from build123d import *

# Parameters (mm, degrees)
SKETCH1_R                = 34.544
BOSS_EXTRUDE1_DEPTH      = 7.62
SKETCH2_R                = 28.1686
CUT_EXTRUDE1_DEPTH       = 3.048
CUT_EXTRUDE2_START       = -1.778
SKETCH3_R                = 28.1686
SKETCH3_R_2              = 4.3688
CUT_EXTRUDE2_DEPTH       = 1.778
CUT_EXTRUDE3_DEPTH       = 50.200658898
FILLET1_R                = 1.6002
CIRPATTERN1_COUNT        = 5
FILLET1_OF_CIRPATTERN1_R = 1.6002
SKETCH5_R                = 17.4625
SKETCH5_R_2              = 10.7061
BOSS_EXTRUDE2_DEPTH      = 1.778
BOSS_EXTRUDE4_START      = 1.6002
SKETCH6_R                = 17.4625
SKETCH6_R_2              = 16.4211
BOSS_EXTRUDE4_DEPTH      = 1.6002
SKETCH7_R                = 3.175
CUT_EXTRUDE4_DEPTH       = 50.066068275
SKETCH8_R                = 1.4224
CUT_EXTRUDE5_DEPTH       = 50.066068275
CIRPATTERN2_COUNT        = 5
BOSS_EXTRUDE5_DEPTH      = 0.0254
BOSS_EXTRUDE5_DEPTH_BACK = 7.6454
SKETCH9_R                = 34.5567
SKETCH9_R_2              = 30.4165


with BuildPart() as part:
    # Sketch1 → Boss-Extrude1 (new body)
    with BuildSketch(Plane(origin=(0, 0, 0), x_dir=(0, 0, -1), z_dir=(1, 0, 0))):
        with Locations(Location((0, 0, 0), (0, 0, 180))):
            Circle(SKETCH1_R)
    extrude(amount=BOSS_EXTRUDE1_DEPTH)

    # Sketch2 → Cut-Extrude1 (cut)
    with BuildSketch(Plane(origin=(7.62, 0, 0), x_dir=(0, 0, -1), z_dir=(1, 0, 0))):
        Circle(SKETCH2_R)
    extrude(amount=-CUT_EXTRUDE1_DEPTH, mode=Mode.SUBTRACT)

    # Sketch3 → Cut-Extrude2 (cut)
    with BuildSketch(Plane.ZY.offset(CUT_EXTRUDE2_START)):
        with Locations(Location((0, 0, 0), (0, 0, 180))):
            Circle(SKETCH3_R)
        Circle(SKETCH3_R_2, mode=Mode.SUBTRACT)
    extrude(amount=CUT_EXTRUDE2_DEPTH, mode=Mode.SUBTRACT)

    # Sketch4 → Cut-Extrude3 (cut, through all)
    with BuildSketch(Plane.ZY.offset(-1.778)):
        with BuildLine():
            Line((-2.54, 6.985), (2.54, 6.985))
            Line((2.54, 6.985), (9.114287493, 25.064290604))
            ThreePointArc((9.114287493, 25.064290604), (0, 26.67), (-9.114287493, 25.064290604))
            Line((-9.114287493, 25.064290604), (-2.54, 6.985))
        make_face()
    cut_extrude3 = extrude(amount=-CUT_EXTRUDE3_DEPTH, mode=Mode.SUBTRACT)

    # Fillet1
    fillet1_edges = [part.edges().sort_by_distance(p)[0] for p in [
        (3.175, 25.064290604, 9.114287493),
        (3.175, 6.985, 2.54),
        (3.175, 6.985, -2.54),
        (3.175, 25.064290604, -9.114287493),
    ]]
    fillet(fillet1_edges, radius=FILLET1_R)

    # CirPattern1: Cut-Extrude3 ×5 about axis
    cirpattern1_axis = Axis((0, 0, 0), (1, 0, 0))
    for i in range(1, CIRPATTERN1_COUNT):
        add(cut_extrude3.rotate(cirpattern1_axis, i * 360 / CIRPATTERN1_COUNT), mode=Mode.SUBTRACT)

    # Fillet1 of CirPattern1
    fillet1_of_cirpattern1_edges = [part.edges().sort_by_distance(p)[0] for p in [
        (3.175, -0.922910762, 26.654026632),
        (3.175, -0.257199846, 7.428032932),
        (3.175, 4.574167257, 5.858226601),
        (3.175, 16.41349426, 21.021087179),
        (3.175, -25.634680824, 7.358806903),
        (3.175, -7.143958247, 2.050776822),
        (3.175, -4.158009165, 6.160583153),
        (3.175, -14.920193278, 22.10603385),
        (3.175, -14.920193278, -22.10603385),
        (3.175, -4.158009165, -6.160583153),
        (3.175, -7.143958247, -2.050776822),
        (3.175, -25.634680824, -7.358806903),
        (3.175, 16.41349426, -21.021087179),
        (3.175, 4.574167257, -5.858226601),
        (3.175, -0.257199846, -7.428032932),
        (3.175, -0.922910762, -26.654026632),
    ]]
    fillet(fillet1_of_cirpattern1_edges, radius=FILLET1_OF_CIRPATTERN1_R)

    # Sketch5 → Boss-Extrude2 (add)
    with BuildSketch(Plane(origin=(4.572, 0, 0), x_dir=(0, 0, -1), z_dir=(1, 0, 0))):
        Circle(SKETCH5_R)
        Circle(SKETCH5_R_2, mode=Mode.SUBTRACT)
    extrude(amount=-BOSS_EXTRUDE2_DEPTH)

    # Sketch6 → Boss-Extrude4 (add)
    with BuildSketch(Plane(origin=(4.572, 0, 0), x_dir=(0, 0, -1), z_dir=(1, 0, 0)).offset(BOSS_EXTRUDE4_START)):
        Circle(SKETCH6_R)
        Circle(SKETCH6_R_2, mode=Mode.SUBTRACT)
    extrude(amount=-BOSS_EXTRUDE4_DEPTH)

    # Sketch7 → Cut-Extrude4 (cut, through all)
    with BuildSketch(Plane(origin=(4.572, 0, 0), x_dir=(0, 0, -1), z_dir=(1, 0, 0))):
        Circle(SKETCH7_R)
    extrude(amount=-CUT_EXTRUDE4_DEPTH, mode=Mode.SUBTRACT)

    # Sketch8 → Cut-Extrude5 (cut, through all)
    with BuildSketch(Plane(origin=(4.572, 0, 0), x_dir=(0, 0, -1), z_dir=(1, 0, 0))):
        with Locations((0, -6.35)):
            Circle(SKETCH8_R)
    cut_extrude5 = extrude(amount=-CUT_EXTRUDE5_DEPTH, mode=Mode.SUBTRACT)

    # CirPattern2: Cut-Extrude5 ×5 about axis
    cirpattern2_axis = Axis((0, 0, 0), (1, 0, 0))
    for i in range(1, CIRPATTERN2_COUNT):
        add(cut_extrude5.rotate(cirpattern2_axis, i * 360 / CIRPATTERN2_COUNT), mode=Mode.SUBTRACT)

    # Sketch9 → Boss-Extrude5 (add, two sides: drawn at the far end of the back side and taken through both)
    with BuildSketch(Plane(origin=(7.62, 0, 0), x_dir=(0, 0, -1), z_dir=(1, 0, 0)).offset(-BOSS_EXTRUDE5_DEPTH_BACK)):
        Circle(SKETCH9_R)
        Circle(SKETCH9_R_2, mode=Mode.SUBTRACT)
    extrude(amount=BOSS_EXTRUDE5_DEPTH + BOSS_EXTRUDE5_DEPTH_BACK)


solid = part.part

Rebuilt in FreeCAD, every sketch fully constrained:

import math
import FreeCAD as App
import Part
import Sketcher
from FreeCAD import Vector
Q = App.Units.Quantity


def edges_at(feature, points):
    """Names of the edges that pass closest to the given points."""
    edges = feature.Shape.Edges
    near = lambda p: min(range(len(edges)), key=lambda i: edges[i].distToShape(Part.Vertex(*p))[0])
    return sorted({f"Edge{near(p) + 1}" for p in points})

doc = App.newDocument("Part")
body = doc.addObject("PartDesign::Body", "Body")

# Sketch on YZ plane
sketch1 = body.newObject("Sketcher::SketchObject", "Sketch")
sketch1.AttachmentSupport = (doc.getObject("YZ_Plane"), [""])
sketch1.MapMode = "FlatFace"
sketch1.addGeometry(Part.Circle(Vector(0, 0, 0), Vector(0, 0, 1), 35), False)
sketch1.addConstraint([
    Sketcher.Constraint("Coincident", 0, 3, -1, 1),
    Sketcher.Constraint("Diameter", 0, Q("2.72 in")),
])
pad1 = body.newObject("PartDesign::Pad", "Pad")
pad1.Profile = sketch1
pad1.Length = Q("0.3 in")

# Sketch on YZ plane
sketch2 = body.newObject("Sketcher::SketchObject", "Sketch001")
sketch2.AttachmentSupport = (doc.getObject("YZ_Plane"), [""])
sketch2.MapMode = "FlatFace"
sketch2.AttachmentOffset = App.Placement(Vector(0, 0, 0.3 * 25.4), App.Rotation())
sketch2.addGeometry(Part.Circle(Vector(0, 0, 0), Vector(0, 0, 1), 28), False)
sketch2.addConstraint([
    Sketcher.Constraint("Coincident", 0, 3, -1, 1),
    Sketcher.Constraint("Diameter", 0, Q("2.218 in")),
])
pocket1 = body.newObject("PartDesign::Pocket", "Pocket")
pocket1.Profile = sketch2
pocket1.Length = Q("0.12 in")

# Sketch on YZ plane
sketch3 = body.newObject("Sketcher::SketchObject", "Sketch002")
sketch3.AttachmentSupport = (doc.getObject("YZ_Plane"), [""])
sketch3.MapMode = "FlatFace"
sketch3.AttachmentOffset = App.Placement(Vector(0, 0, 0.07 * 25.4), App.Rotation())
sketch3.addGeometry([
    Part.Circle(Vector(0, 0, 0), Vector(0, 0, 1), 28.2),
    Part.Circle(Vector(0, 0, 0), Vector(0, 0, 1), 4.4),
], False)
sketch3.addConstraint([
    Sketcher.Constraint("Coincident", 0, 3, -1, 1),
    Sketcher.Constraint("Coincident", 1, 3, -1, 1),
    Sketcher.Constraint("Diameter", 0, Q("2.218 in")),
    Sketcher.Constraint("Diameter", 1, Q("0.344 in")),
])
pocket2 = body.newObject("PartDesign::Pocket", "Pocket001")
pocket2.Profile = sketch3
pocket2.Length = Q("0.07 in")

# Sketch on YZ plane
sketch4 = body.newObject("Sketcher::SketchObject", "Sketch003")
sketch4.AttachmentSupport = (doc.getObject("YZ_Plane"), [""])
sketch4.MapMode = "FlatFace"
sketch4.AttachmentOffset = App.Placement(Vector(0, 0, 0.07 * 25.4), App.Rotation())
sketch4.addGeometry([
    Part.LineSegment(Vector(7, -3, 0), Vector(7, 3, 0)),
    Part.LineSegment(Vector(7, 3, 0), Vector(25, 9, 0)),
    Part.ArcOfCircle(Part.Circle(Vector(0, 0, 0), Vector(0, 0, 1), 27), math.radians(-20), math.radians(20)),
    Part.LineSegment(Vector(25, -9, 0), Vector(7, -3, 0)),
], False)
sketch4.addConstraint([
    Sketcher.Constraint("Coincident", 0, 2, 1, 1),
    Sketcher.Constraint("Coincident", 1, 2, 2, 2),
    Sketcher.Constraint("Coincident", 2, 1, 3, 1),
    Sketcher.Constraint("Coincident", 3, 2, 0, 1),
    Sketcher.Constraint("Vertical", 0),
    Sketcher.Constraint("Coincident", 2, 3, -1, 1),
    Sketcher.Constraint("Vertical", 1, 2, 2, 1),
    Sketcher.Constraint("Equal", 1, 3),
    Sketcher.Constraint("Radius", 2, Q("1.05 in")),
    Sketcher.Constraint("DistanceY", 0, 1, 0, 2, Q("0.2 in")),
    Sketcher.Constraint("DistanceX", -1, 1, 0, 2, Q("0.275 in")),
    Sketcher.Constraint("DistanceX", -1, 1, 1, 2, 25.064291),
])
pocket3 = body.newObject("PartDesign::Pocket", "Pocket002")
pocket3.Profile = sketch4
pocket3.Type = "ThroughAll"
pocket3.Reversed = True
doc.recompute()

fillet = body.newObject("PartDesign::Fillet", "Fillet")
fillet.Base = (pocket3, edges_at(pocket3, [
    (3.175, 25.064, 9.114),
    (3.175, 6.985, 2.54),
    (3.175, 6.985, -2.54),
    (3.175, 25.064, -9.114),
]))
fillet.Radius = Q("0.063 in")
doc.recompute()

polarpattern = body.newObject("PartDesign::PolarPattern", "PolarPattern")
polarpattern.Originals = [pocket3]
polarpattern.Axis = (doc.getObject("X_Axis"), [""])
polarpattern.Angle = 360
polarpattern.Occurrences = 5
body.Tip = polarpattern
doc.recompute()

fillet2 = body.newObject("PartDesign::Fillet", "Fillet001")
fillet2.Base = (polarpattern, edges_at(polarpattern, [
    (3.175, -0.923, 26.654),
    (3.175, -0.257, 7.428),
    (3.175, 4.574, 5.858),
    (3.175, 16.413, 21.021),
    (3.175, -25.635, 7.359),
    (3.175, -7.144, 2.051),
    (3.175, -4.158, 6.161),
    (3.175, -14.92, 22.106),
    (3.175, -14.92, -22.106),
    (3.175, -4.158, -6.161),
    (3.175, -7.144, -2.051),
    (3.175, -25.635, -7.359),
    (3.175, 16.413, -21.021),
    (3.175, 4.574, -5.858),
    (3.175, -0.257, -7.428),
    (3.175, -0.923, -26.654),
]))
fillet2.Radius = Q("0.063 in")

# Sketch on YZ plane
sketch5 = body.newObject("Sketcher::SketchObject", "Sketch004")
sketch5.AttachmentSupport = (doc.getObject("YZ_Plane"), [""])
sketch5.MapMode = "FlatFace"
sketch5.AttachmentOffset = App.Placement(Vector(0, 0, 0.18 * 25.4), App.Rotation())
sketch5.addGeometry([
    Part.Circle(Vector(0, 0, 0), Vector(0, 0, 1), 17),
    Part.Circle(Vector(0, 0, 0), Vector(0, 0, 1), 11),
], False)
sketch5.addConstraint([
    Sketcher.Constraint("Coincident", 0, 3, -1, 1),
    Sketcher.Constraint("Coincident", 1, 3, -1, 1),
    Sketcher.Constraint("Diameter", 0, Q("1.375 in")),
    Sketcher.Constraint("Diameter", 1, Q("0.843 in")),
])
pad2 = body.newObject("PartDesign::Pad", "Pad001")
pad2.Profile = sketch5
pad2.Length = Q("0.07 in")
pad2.Reversed = True

# Sketch on YZ plane
sketch6 = body.newObject("Sketcher::SketchObject", "Sketch005")
sketch6.AttachmentSupport = (doc.getObject("YZ_Plane"), [""])
sketch6.MapMode = "FlatFace"
sketch6.AttachmentOffset = App.Placement(Vector(0, 0, 0.243 * 25.4), App.Rotation())
sketch6.addGeometry([
    Part.Circle(Vector(0, 0, 0), Vector(0, 0, 1), 17),
    Part.Circle(Vector(0, 0, 0), Vector(0, 0, 1), 16),
], False)
sketch6.addConstraint([
    Sketcher.Constraint("Coincident", 0, 3, -1, 1),
    Sketcher.Constraint("Coincident", 1, 3, -1, 1),
    Sketcher.Constraint("Diameter", 0, Q("1.375 in")),
    Sketcher.Constraint("Diameter", 1, Q("1.293 in")),
])
pad3 = body.newObject("PartDesign::Pad", "Pad002")
pad3.Profile = sketch6
pad3.Length = Q("0.063 in")
pad3.Reversed = True

# Sketch on YZ plane
sketch7 = body.newObject("Sketcher::SketchObject", "Sketch006")
sketch7.AttachmentSupport = (doc.getObject("YZ_Plane"), [""])
sketch7.MapMode = "FlatFace"
sketch7.AttachmentOffset = App.Placement(Vector(0, 0, 0.18 * 25.4), App.Rotation())
sketch7.addGeometry(Part.Circle(Vector(0, 0, 0), Vector(0, 0, 1), 3.2), False)
sketch7.addConstraint([
    Sketcher.Constraint("Coincident", 0, 3, -1, 1),
    Sketcher.Constraint("Diameter", 0, Q("0.25 in")),
])
pocket4 = body.newObject("PartDesign::Pocket", "Pocket003")
pocket4.Profile = sketch7
pocket4.Type = "ThroughAll"

# Sketch on YZ plane
sketch8 = body.newObject("Sketcher::SketchObject", "Sketch007")
sketch8.AttachmentSupport = (doc.getObject("YZ_Plane"), [""])
sketch8.MapMode = "FlatFace"
sketch8.AttachmentOffset = App.Placement(Vector(0, 0, 0.18 * 25.4), App.Rotation())
sketch8.addGeometry(Part.Circle(Vector(-6.3, 0, 0), Vector(0, 0, 1), 1.4), False)
sketch8.addConstraint([
    Sketcher.Constraint("PointOnObject", 0, 3, -1),
    Sketcher.Constraint("Diameter", 0, Q("0.112 in")),
    Sketcher.Constraint("DistanceX", 0, 3, -1, 1, Q("0.25 in")),
])
pocket5 = body.newObject("PartDesign::Pocket", "Pocket004")
pocket5.Profile = sketch8
pocket5.Type = "ThroughAll"
doc.recompute()

polarpattern2 = body.newObject("PartDesign::PolarPattern", "PolarPattern001")
polarpattern2.Originals = [pocket5]
polarpattern2.Axis = (doc.getObject("X_Axis"), [""])
polarpattern2.Angle = 360
polarpattern2.Occurrences = 5
body.Tip = polarpattern2

# Sketch on YZ plane
sketch9 = body.newObject("Sketcher::SketchObject", "Sketch008")
sketch9.AttachmentSupport = (doc.getObject("YZ_Plane"), [""])
sketch9.MapMode = "FlatFace"
sketch9.AttachmentOffset = App.Placement(Vector(0, 0, 0.3 * 25.4), App.Rotation())
sketch9.addGeometry([
    Part.Circle(Vector(0, 0, 0), Vector(0, 0, 1), 35),
    Part.Circle(Vector(0, 0, 0), Vector(0, 0, 1), 30),
], False)
sketch9.addConstraint([
    Sketcher.Constraint("Coincident", 0, 3, -1, 1),
    Sketcher.Constraint("Coincident", 1, 3, -1, 1),
    Sketcher.Constraint("Diameter", 0, Q("2.721 in")),
    Sketcher.Constraint("Diameter", 1, Q("2.395 in")),
])
pad4 = body.newObject("PartDesign::Pad", "Pad003")
pad4.Profile = sketch9
pad4.Type = "TwoLengths"
pad4.Length = Q("0.001 in")
pad4.Length2 = Q("0.301 in")

doc.recompute()
